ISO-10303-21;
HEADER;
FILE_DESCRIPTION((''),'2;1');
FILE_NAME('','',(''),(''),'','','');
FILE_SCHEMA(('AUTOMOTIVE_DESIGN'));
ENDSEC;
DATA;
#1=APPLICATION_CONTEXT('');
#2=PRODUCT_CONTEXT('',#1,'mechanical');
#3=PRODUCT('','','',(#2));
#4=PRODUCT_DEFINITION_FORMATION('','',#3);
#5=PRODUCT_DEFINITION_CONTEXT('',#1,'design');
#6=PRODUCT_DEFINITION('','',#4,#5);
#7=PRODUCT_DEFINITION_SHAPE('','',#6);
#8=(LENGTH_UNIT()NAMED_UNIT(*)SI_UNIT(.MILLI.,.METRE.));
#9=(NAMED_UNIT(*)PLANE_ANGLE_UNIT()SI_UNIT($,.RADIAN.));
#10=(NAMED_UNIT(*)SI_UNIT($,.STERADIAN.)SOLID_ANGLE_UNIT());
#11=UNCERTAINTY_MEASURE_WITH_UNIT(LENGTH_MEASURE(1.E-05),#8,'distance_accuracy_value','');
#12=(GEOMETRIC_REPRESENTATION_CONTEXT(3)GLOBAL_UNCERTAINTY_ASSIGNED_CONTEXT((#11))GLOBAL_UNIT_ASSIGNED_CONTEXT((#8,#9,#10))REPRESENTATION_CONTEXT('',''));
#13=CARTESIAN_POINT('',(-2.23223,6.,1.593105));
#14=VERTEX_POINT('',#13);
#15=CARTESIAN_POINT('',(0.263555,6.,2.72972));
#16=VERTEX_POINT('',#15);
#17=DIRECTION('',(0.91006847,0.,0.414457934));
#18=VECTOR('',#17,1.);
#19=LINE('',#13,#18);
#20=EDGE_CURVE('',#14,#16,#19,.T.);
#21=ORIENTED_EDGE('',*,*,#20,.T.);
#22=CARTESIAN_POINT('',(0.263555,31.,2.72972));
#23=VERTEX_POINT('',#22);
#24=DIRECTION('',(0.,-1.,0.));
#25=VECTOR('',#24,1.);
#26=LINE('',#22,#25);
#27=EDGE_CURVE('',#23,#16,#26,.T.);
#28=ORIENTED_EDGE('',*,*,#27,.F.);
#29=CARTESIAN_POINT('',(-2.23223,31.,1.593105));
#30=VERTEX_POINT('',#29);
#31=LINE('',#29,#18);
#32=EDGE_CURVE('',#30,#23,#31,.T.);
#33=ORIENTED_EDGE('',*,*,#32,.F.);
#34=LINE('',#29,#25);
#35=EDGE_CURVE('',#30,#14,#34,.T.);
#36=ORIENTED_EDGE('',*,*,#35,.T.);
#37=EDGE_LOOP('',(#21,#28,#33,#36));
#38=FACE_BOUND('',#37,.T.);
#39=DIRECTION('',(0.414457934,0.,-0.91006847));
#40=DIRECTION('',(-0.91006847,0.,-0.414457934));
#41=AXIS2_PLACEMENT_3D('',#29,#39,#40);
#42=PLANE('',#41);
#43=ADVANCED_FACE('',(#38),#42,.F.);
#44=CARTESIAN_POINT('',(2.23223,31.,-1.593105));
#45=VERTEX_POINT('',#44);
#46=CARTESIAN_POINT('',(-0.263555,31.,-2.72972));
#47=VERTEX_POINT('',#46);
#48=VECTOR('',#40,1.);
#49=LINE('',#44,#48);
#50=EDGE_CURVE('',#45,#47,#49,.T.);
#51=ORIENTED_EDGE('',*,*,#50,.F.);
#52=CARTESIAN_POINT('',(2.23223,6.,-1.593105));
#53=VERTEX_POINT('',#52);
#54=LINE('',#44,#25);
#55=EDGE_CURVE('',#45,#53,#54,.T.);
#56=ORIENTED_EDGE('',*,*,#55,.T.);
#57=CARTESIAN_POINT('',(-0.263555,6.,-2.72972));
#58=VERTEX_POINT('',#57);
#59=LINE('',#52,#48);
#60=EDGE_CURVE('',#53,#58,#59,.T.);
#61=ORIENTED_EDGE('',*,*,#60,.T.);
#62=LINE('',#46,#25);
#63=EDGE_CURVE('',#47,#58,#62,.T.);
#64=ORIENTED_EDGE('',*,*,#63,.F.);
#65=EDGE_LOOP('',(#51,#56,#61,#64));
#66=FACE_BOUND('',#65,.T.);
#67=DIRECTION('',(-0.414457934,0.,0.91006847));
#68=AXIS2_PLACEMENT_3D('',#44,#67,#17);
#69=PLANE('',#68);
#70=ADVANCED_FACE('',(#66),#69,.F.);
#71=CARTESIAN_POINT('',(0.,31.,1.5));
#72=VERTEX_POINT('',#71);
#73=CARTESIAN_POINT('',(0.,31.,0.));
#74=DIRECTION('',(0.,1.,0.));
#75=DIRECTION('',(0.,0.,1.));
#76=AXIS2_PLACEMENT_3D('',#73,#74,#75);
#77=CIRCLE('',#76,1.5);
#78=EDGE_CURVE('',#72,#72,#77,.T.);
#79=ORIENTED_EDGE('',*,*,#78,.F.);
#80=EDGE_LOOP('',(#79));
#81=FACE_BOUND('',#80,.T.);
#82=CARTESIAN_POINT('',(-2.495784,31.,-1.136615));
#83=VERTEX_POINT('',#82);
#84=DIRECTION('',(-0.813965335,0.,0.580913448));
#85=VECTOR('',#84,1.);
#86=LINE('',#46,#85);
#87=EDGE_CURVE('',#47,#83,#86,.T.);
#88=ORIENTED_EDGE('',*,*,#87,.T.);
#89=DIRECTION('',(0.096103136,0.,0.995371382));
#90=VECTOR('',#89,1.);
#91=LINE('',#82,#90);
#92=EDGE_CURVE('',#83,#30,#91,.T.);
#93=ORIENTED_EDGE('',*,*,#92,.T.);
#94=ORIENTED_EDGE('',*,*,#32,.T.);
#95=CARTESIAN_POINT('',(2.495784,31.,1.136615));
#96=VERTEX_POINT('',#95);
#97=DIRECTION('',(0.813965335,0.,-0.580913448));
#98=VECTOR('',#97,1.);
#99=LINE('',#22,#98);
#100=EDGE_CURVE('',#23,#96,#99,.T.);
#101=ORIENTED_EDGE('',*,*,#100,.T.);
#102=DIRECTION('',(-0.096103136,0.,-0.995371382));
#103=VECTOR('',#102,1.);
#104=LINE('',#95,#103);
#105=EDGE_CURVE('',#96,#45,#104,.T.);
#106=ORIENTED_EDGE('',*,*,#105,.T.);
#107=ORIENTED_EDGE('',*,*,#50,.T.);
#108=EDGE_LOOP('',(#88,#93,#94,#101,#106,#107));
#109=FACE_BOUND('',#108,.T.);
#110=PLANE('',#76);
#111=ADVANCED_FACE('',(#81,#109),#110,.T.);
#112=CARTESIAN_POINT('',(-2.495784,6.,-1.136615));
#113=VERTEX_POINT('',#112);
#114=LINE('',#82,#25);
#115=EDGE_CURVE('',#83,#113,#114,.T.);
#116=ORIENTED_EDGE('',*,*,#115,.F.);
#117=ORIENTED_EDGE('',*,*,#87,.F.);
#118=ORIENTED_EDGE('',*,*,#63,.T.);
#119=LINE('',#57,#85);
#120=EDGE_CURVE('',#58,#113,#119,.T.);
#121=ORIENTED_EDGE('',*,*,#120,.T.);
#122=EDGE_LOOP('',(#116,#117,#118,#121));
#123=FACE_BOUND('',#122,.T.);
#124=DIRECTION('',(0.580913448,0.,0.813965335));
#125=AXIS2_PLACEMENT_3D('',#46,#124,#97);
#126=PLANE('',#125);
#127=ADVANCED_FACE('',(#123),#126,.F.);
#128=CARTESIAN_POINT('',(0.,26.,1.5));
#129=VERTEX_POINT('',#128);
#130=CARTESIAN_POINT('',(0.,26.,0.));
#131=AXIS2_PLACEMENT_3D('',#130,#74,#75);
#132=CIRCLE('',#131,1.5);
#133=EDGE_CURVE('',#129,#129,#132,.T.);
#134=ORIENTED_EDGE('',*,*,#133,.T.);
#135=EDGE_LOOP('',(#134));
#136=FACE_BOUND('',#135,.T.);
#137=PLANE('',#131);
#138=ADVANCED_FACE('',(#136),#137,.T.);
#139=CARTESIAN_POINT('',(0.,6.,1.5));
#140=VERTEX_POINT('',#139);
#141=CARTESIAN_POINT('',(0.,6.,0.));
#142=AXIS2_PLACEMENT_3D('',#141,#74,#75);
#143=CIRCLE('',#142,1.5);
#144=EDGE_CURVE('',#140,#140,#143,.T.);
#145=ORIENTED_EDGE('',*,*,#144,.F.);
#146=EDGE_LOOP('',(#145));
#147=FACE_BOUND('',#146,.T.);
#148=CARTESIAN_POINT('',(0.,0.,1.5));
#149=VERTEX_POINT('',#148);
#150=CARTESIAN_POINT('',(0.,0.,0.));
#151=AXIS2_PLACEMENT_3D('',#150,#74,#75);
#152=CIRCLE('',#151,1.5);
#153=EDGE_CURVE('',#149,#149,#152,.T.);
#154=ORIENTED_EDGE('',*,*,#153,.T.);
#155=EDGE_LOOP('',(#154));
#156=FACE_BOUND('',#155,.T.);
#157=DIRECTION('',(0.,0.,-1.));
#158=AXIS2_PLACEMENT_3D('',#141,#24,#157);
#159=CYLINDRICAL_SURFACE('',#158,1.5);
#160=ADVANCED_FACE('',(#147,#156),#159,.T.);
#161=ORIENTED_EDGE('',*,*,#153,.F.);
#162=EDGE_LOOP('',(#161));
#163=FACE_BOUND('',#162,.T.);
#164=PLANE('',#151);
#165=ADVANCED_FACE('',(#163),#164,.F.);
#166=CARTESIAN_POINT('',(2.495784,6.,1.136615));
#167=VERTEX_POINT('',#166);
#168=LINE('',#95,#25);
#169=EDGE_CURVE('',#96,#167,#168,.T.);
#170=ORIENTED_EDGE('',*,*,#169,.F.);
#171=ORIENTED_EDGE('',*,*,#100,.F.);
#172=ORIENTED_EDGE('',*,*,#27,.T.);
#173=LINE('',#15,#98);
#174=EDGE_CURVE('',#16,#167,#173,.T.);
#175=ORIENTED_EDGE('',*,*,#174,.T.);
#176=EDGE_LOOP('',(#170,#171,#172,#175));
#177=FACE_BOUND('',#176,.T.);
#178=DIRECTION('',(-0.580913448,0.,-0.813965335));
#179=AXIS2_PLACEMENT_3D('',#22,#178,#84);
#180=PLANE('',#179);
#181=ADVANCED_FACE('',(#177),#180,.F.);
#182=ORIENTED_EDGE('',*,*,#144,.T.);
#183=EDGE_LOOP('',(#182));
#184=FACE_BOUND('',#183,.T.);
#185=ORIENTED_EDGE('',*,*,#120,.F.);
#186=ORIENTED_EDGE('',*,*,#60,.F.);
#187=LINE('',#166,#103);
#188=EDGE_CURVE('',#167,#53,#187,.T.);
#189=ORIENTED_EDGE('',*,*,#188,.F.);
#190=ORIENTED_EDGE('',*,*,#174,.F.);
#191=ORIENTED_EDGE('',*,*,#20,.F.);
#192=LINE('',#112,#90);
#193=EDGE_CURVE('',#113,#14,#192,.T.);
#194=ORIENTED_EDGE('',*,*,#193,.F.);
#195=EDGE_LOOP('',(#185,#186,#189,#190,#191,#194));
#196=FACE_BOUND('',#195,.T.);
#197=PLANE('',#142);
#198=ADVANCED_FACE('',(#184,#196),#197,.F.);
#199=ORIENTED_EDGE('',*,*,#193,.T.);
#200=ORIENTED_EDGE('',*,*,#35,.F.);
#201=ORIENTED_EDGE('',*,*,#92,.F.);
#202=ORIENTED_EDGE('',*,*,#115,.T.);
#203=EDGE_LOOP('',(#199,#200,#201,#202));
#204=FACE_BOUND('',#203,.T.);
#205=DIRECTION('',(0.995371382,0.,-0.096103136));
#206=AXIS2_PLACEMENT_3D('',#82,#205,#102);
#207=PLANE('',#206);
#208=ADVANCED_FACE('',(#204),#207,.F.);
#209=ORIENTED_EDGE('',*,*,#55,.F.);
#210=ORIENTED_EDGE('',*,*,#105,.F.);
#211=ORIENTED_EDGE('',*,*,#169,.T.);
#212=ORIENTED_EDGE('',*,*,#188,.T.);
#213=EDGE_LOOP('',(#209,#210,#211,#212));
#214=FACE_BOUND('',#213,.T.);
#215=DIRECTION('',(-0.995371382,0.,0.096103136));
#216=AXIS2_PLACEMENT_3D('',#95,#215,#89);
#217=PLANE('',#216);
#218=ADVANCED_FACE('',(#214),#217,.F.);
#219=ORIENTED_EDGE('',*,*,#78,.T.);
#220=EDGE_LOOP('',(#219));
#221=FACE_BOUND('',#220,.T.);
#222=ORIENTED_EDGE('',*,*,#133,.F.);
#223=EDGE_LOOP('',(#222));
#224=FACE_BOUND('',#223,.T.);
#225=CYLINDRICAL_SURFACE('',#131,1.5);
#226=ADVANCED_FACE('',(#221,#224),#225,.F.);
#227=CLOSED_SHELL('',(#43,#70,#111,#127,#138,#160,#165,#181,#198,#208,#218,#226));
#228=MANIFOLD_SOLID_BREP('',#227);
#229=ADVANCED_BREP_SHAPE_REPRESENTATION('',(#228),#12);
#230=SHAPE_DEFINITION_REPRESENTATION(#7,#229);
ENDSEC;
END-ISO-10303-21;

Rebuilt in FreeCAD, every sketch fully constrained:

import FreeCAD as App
import Part
import Sketcher
from FreeCAD import Vector

doc = App.newDocument("Part")
body = doc.addObject("PartDesign::Body", "Body")

sketch1 = body.newObject("Sketcher::SketchObject", "Sketch")
sketch1.AttachmentSupport = (doc.getObject("XZ_Plane"), [""])
sketch1.MapMode = "FlatFace"
sketch1.addGeometry(Part.Circle(Vector(0, 0, 0), Vector(0, 0, 1), 1.5), False)
sketch1.addConstraint([
    Sketcher.Constraint("Coincident", 0, 3, -1, 1),
    Sketcher.Constraint("Diameter", 0, 3.0),
])
pad1 = body.newObject("PartDesign::Pad", "Pad")
pad1.Profile = sketch1
pad1.Length = 6
pad1.Reversed = True

sketch2 = body.newObject("Sketcher::SketchObject", "Sketch001")
sketch2.AttachmentSupport = (doc.getObject("XZ_Plane"), [""])
sketch2.MapMode = "FlatFace"
sketch2.AttachmentOffset = App.Placement(Vector(0, 0, -6), App.Rotation())
sketch2.addGeometry([
    Part.LineSegment(Vector(2.495784, 1.136615, 0), Vector(2.23223, -1.593105, 0)),
    Part.LineSegment(Vector(2.23223, -1.593105, 0), Vector(-0.263555, -2.72972, 0)),
    Part.LineSegment(Vector(-0.263555, -2.72972, 0), Vector(-2.495784, -1.136615, 0)),
    Part.LineSegment(Vector(-2.495784, -1.136615, 0), Vector(-2.23223, 1.593105, 0)),
    Part.LineSegment(Vector(-2.23223, 1.593105, 0), Vector(0.263555, 2.72972, 0)),
    Part.LineSegment(Vector(0.263555, 2.72972, 0), Vector(2.495784, 1.136615, 0)),
], False)
sketch2.addConstraint([
    Sketcher.Constraint("Coincident", 0, 2, 1, 1),
    Sketcher.Constraint("Coincident", 1, 2, 2, 1),
    Sketcher.Constraint("Coincident", 2, 2, 3, 1),
    Sketcher.Constraint("Coincident", 3, 2, 4, 1),
    Sketcher.Constraint("Coincident", 4, 2, 5, 1),
    Sketcher.Constraint("Coincident", 5, 2, 0, 1),
    Sketcher.Constraint("Symmetric", 0, 2, 3, 2, -1, 1),
    Sketcher.Constraint("Symmetric", 1, 2, 4, 2, -1, 1),
    Sketcher.Constraint("Symmetric", 2, 2, 5, 2, -1, 1),
    Sketcher.Constraint("Equal", 0, 1),
    Sketcher.Constraint("Equal", 1, 2),
    Sketcher.Constraint("DistanceX", -1, 1, 0, 2, 2.23223),
    Sketcher.Constraint("DistanceY", 1, 2, -1, 1, 2.72972),
    Sketcher.Constraint("DistanceX", 2, 2, 1, 2, 2.23223),
    Sketcher.Constraint("DistanceY", 0, 2, 2, 2, 0.45649),
])
pad2 = body.newObject("PartDesign::Pad", "Pad001")
pad2.Profile = sketch2
pad2.Length = 25
pad2.Reversed = True

sketch3 = body.newObject("Sketcher::SketchObject", "Sketch002")
sketch3.AttachmentSupport = (doc.getObject("XZ_Plane"), [""])
sketch3.MapMode = "FlatFace"
sketch3.AttachmentOffset = App.Placement(Vector(0, 0, -26), App.Rotation())
sketch3.addGeometry(Part.Circle(Vector(0, 0, 0), Vector(0, 0, 1), 1.5), False)
sketch3.addConstraint([
    Sketcher.Constraint("Coincident", 0, 3, -1, 1),
    Sketcher.Constraint("Diameter", 0, 3.0),
])
pocket1 = body.newObject("PartDesign::Pocket", "Pocket")
pocket1.Profile = sketch3
pocket1.Length = 5

doc.recompute()
